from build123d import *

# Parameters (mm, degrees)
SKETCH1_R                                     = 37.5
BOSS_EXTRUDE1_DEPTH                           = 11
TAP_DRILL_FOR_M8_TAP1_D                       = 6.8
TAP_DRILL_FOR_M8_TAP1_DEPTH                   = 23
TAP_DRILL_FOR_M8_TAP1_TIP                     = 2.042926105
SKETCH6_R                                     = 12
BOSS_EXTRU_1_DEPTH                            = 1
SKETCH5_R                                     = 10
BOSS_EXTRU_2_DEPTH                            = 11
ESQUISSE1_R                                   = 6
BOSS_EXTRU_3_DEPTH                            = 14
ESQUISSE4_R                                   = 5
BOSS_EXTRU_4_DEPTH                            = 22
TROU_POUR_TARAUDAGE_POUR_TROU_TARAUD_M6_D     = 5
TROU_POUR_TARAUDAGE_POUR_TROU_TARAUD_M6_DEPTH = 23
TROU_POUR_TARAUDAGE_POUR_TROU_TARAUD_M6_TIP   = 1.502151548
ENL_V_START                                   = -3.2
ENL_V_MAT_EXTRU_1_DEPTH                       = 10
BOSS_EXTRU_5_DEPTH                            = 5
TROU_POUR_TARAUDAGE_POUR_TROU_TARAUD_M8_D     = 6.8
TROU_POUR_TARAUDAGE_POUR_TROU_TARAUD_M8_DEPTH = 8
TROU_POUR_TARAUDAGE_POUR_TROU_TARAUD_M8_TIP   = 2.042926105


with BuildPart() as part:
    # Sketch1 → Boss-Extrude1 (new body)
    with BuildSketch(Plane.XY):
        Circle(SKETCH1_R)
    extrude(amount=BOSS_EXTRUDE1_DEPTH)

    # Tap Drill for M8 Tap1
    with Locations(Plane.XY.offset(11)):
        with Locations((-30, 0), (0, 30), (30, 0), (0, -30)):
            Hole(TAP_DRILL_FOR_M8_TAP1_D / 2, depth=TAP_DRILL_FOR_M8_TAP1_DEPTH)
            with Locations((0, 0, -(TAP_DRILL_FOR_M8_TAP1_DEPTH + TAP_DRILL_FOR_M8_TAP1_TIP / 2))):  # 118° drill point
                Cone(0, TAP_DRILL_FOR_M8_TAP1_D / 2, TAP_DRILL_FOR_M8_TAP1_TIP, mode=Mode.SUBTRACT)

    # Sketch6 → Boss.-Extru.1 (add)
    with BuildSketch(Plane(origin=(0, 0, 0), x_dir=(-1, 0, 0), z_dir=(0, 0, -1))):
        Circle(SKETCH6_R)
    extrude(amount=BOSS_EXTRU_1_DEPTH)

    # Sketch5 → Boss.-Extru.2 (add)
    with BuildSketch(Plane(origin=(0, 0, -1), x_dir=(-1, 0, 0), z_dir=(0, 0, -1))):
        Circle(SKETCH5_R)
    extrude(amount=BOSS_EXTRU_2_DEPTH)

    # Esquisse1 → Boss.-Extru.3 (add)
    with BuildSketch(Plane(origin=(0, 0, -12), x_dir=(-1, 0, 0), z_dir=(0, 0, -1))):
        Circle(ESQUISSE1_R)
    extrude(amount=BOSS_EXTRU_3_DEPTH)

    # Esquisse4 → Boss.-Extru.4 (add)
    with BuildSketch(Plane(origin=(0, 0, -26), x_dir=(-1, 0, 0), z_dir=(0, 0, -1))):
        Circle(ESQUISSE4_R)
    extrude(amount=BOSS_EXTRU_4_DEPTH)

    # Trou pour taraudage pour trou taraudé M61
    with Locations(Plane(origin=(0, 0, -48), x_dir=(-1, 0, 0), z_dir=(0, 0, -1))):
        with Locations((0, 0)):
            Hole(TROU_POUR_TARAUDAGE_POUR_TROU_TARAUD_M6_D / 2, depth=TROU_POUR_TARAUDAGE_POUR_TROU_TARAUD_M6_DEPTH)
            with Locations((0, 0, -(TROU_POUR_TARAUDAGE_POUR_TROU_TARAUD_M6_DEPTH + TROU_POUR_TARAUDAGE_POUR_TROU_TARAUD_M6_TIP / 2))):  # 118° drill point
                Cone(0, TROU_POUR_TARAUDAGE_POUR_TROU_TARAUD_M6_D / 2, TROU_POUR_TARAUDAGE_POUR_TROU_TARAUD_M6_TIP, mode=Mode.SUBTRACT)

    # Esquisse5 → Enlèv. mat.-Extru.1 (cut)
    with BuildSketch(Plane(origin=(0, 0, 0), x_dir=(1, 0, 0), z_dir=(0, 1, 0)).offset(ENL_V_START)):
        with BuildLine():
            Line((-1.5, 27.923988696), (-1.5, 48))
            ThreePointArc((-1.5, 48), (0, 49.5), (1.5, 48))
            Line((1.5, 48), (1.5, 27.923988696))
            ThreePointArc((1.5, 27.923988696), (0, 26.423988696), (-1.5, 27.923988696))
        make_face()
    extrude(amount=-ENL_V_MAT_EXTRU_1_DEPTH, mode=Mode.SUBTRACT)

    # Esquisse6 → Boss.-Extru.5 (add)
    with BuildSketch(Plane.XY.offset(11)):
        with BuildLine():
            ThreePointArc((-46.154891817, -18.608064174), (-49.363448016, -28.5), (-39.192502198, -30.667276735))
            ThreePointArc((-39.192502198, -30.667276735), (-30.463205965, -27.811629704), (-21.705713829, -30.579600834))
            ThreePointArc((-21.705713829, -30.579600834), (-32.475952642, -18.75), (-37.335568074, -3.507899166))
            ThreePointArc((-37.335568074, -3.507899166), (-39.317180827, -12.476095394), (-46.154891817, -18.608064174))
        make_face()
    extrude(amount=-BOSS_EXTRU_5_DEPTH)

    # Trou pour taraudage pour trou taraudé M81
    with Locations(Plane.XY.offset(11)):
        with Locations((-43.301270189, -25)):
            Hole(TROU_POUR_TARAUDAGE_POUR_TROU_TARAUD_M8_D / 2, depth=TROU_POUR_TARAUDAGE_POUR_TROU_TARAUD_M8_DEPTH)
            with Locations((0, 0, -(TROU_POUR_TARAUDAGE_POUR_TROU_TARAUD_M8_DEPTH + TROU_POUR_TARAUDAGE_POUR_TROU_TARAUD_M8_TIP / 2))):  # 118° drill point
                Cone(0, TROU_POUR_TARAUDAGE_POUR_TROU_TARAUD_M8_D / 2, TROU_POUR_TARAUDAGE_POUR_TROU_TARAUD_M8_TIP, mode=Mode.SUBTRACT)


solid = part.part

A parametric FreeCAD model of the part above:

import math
import FreeCAD as App
import Part
import Sketcher
from FreeCAD import Vector

doc = App.newDocument("Part")
body = doc.addObject("PartDesign::Body", "Body")

# Sketch on XY plane
sketch1 = doc.addObject("Sketcher::SketchObject", "Sketch")
body.addObject(sketch1)
sketch1.AttachmentSupport = (doc.XY_Plane, [""])
sketch1.MapMode = "FlatFace"
sketch1.addGeometry(Part.Circle(Vector(0, 0, 0), Vector(0, 0, 1), 38), False)
sketch1.addConstraint([
    Sketcher.Constraint("Coincident", 0, 3, -1, 1),
    Sketcher.Constraint("Diameter", 0, 75.0),
])
pad1 = doc.addObject("PartDesign::Pad", "Pad")
body.addObject(pad1)
pad1.Profile = sketch1
pad1.Length = 11

# Sketch on XY plane
sketch2 = doc.addObject("Sketcher::SketchObject", "Sketch001")
body.addObject(sketch2)
sketch2.AttachmentSupport = (doc.XY_Plane, [""])
sketch2.MapMode = "FlatFace"
sketch2.AttachmentOffset = App.Placement(Vector(0, 0, 11), App.Rotation())
sketch2.addGeometry([
    Part.Circle(Vector(-30, 0, 0), Vector(0, 0, 1), 3.4),
    Part.Circle(Vector(0, 30, 0), Vector(0, 0, 1), 3.4),
    Part.Circle(Vector(30, 0, 0), Vector(0, 0, 1), 3.4),
    Part.Circle(Vector(0, -30, 0), Vector(0, 0, 1), 3.4),
], False)
sketch2.addConstraint([
    Sketcher.Constraint("Equal", 0, 1),
    Sketcher.Constraint("Equal", 1, 2),
    Sketcher.Constraint("Equal", 2, 3),
    Sketcher.Constraint("Symmetric", 0, 3, 2, 3, -1, 1),
    Sketcher.Constraint("Symmetric", 1, 3, 3, 3, -1, 1),
    Sketcher.Constraint("PointOnObject", 0, 3, -1),
    Sketcher.Constraint("PointOnObject", 1, 3, -2),
    Sketcher.Constraint("Diameter", 0, 6.8),
    Sketcher.Constraint("DistanceX", 0, 3, -1, 1, 30.0),
    Sketcher.Constraint("DistanceY", -1, 1, 1, 3, 30.0),
])
doc.recompute()
hole = doc.addObject("PartDesign::Hole", "Hole")
body.addObject(hole)
hole.Profile = sketch2
hole.ThreadType = "None"
hole.Diameter = 6.8
hole.DepthType = "Dimension"
hole.Depth = 23
hole.DrillPoint = "Angled"
hole.DrillPointAngle = 118

# Sketch on XY plane
sketch3 = doc.addObject("Sketcher::SketchObject", "Sketch002")
body.addObject(sketch3)
sketch3.AttachmentSupport = (doc.XY_Plane, [""])
sketch3.MapMode = "FlatFace"
sketch3.addGeometry(Part.Circle(Vector(0, 0, 0), Vector(0, 0, 1), 12), False)
sketch3.addConstraint([
    Sketcher.Constraint("Coincident", 0, 3, -1, 1),
    Sketcher.Constraint("Diameter", 0, 24.0),
])
pad2 = doc.addObject("PartDesign::Pad", "Pad001")
body.addObject(pad2)
pad2.Profile = sketch3
pad2.Length = 1
pad2.Reversed = True

# Sketch on XY plane
sketch4 = doc.addObject("Sketcher::SketchObject", "Sketch003")
body.addObject(sketch4)
sketch4.AttachmentSupport = (doc.XY_Plane, [""])
sketch4.MapMode = "FlatFace"
sketch4.AttachmentOffset = App.Placement(Vector(0, 0, -1), App.Rotation())
sketch4.addGeometry(Part.Circle(Vector(0, 0, 0), Vector(0, 0, 1), 10), False)
sketch4.addConstraint([
    Sketcher.Constraint("Coincident", 0, 3, -1, 1),
    Sketcher.Constraint("Diameter", 0, 20.0),
])
pad3 = doc.addObject("PartDesign::Pad", "Pad002")
body.addObject(pad3)
pad3.Profile = sketch4
pad3.Length = 11
pad3.Reversed = True

# Sketch on XY plane
sketch5 = doc.addObject("Sketcher::SketchObject", "Sketch004")
body.addObject(sketch5)
sketch5.AttachmentSupport = (doc.XY_Plane, [""])
sketch5.MapMode = "FlatFace"
sketch5.AttachmentOffset = App.Placement(Vector(0, 0, -12), App.Rotation())
sketch5.addGeometry(Part.Circle(Vector(0, 0, 0), Vector(0, 0, 1), 6), False)
sketch5.addConstraint([
    Sketcher.Constraint("Coincident", 0, 3, -1, 1),
    Sketcher.Constraint("Diameter", 0, 12.0),
])
pad4 = doc.addObject("PartDesign::Pad", "Pad003")
body.addObject(pad4)
pad4.Profile = sketch5
pad4.Length = 14
pad4.Reversed = True

# Sketch on XY plane
sketch6 = doc.addObject("Sketcher::SketchObject", "Sketch005")
body.addObject(sketch6)
sketch6.AttachmentSupport = (doc.XY_Plane, [""])
sketch6.MapMode = "FlatFace"
sketch6.AttachmentOffset = App.Placement(Vector(0, 0, -26), App.Rotation())
sketch6.addGeometry(Part.Circle(Vector(0, 0, 0), Vector(0, 0, 1), 5), False)
sketch6.addConstraint([
    Sketcher.Constraint("Coincident", 0, 3, -1, 1),
    Sketcher.Constraint("Diameter", 0, 10.0),
])
pad5 = doc.addObject("PartDesign::Pad", "Pad004")
body.addObject(pad5)
pad5.Profile = sketch6
pad5.Length = 22
pad5.Reversed = True

# Sketch on XY plane
sketch7 = doc.addObject("Sketcher::SketchObject", "Sketch006")
body.addObject(sketch7)
sketch7.AttachmentSupport = (doc.XY_Plane, [""])
sketch7.MapMode = "FlatFace"
sketch7.AttachmentOffset = App.Placement(Vector(0, 0, -48), App.Rotation())
sketch7.addGeometry(Part.Circle(Vector(0, 0, 0), Vector(0, 0, 1), 2.5), False)
sketch7.addConstraint([
    Sketcher.Constraint("Coincident", 0, 3, -1, 1),
    Sketcher.Constraint("Diameter", 0, 5.0),
])
doc.recompute()
hole2 = doc.addObject("PartDesign::Hole", "Hole001")
body.addObject(hole2)
hole2.Profile = sketch7
hole2.ThreadType = "None"
hole2.Diameter = 5
hole2.DepthType = "Dimension"
hole2.Depth = 23
hole2.DrillPoint = "Angled"
hole2.DrillPointAngle = 118
hole2.Reversed = True

# Sketch on XZ plane
sketch8 = doc.addObject("Sketcher::SketchObject", "Sketch007")
body.addObject(sketch8)
sketch8.AttachmentSupport = (doc.XZ_Plane, [""])
sketch8.MapMode = "FlatFace"
sketch8.AttachmentOffset = App.Placement(Vector(0, 0, 3.2), App.Rotation())
sketch8.addGeometry([
    Part.LineSegment(Vector(-1.5, -48, 0), Vector(-1.5, -27.9, 0)),
    Part.ArcOfCircle(Part.Circle(Vector(0, -27.9, 0), Vector(0, 0, 1), 1.5), math.radians(0), math.radians(180)),
    Part.LineSegment(Vector(1.5, -27.9, 0), Vector(1.5, -48, 0)),
    Part.ArcOfCircle(Part.Circle(Vector(0, -48, 0), Vector(0, 0, 1), 1.5), math.radians(180), math.radians(360)),
], False)
sketch8.addConstraint([
    Sketcher.Constraint("Tangent", 0, 2, 1, 2),
    Sketcher.Constraint("Tangent", 1, 1, 2, 1),
    Sketcher.Constraint("Tangent", 2, 2, 3, 2),
    Sketcher.Constraint("Tangent", 3, 1, 0, 1),
    Sketcher.Constraint("Vertical", 0),
    Sketcher.Constraint("Vertical", 2),
    Sketcher.Constraint("PointOnObject", 1, 3, -2),
    Sketcher.Constraint("Radius", 1, 1.5),
    Sketcher.Constraint("DistanceY", 3, 3, -1, 1, 48.0),
    Sketcher.Constraint("DistanceY", 0, 1, 0, 2, 20.076011),
])
pocket1 = doc.addObject("PartDesign::Pocket", "Pocket")
body.addObject(pocket1)
pocket1.Profile = sketch8
pocket1.Length = 10
pocket1.Reversed = True

# Sketch on XY plane
sketch9 = doc.addObject("Sketcher::SketchObject", "Sketch008")
body.addObject(sketch9)
sketch9.AttachmentSupport = (doc.XY_Plane, [""])
sketch9.MapMode = "FlatFace"
sketch9.AttachmentOffset = App.Placement(Vector(0, 0, 11), App.Rotation())
sketch9.addGeometry([
    Part.ArcOfCircle(Part.Circle(Vector(-43, -25, 0), Vector(0, 0, 1), 7), math.radians(114), math.radians(306)),
    Part.ArcOfCircle(Part.Circle(Vector(-30, -43, 0), Vector(0, 0, 1), 15), math.radians(55), math.radians(126)),
    Part.ArcOfCircle(Part.Circle(Vector(0, 0, 0), Vector(0, 0, 1), 37), math.radians(-175), math.radians(-125)),
    Part.ArcOfCircle(Part.Circle(Vector(-52, -5, 0), Vector(0, 0, 1), 15), math.radians(-66), math.radians(5)),
], False)
sketch9.addConstraint([
    Sketcher.Constraint("Tangent", 0, 2, 1, 2),
    Sketcher.Constraint("Tangent", 1, 1, 2, 2),
    Sketcher.Constraint("Tangent", 2, 1, 3, 2),
    Sketcher.Constraint("Tangent", 3, 1, 0, 1),
    Sketcher.Constraint("Coincident", 2, 3, -1, 1),
    Sketcher.Constraint("Equal", 1, 3),
    Sketcher.Constraint("Radius", 0, 7.0),
    Sketcher.Constraint("Radius", 1, 15.0),
    Sketcher.Constraint("Radius", 2, 37.5),
    Sketcher.Constraint("DistanceY", 0, 3, -1, 1, 25.0),
    Sketcher.Constraint("DistanceX", 1, 3, -1, 1, 30.387999),
])
pad6 = doc.addObject("PartDesign::Pad", "Pad005")
body.addObject(pad6)
pad6.Profile = sketch9
pad6.Length = 5
pad6.Reversed = True

# Sketch on XY plane
sketch10 = doc.addObject("Sketcher::SketchObject", "Sketch009")
body.addObject(sketch10)
sketch10.AttachmentSupport = (doc.XY_Plane, [""])
sketch10.MapMode = "FlatFace"
sketch10.AttachmentOffset = App.Placement(Vector(0, 0, 11), App.Rotation())
sketch10.addGeometry(Part.Circle(Vector(-43.3, -25, 0), Vector(0, 0, 1), 3.4), False)
sketch10.addConstraint([
    Sketcher.Constraint("Diameter", 0, 6.8),
    Sketcher.Constraint("DistanceY", 0, 3, -1, 1, 25.0),
    Sketcher.Constraint("DistanceX", 0, 3, -1, 1, 43.30127),
])
doc.recompute()
hole3 = doc.addObject("PartDesign::Hole", "Hole002")
body.addObject(hole3)
hole3.Profile = sketch10
hole3.ThreadType = "None"
hole3.Diameter = 6.8
hole3.DepthType = "Dimension"
hole3.Depth = 8
hole3.DrillPoint = "Angled"
hole3.DrillPointAngle = 118

doc.recompute()
